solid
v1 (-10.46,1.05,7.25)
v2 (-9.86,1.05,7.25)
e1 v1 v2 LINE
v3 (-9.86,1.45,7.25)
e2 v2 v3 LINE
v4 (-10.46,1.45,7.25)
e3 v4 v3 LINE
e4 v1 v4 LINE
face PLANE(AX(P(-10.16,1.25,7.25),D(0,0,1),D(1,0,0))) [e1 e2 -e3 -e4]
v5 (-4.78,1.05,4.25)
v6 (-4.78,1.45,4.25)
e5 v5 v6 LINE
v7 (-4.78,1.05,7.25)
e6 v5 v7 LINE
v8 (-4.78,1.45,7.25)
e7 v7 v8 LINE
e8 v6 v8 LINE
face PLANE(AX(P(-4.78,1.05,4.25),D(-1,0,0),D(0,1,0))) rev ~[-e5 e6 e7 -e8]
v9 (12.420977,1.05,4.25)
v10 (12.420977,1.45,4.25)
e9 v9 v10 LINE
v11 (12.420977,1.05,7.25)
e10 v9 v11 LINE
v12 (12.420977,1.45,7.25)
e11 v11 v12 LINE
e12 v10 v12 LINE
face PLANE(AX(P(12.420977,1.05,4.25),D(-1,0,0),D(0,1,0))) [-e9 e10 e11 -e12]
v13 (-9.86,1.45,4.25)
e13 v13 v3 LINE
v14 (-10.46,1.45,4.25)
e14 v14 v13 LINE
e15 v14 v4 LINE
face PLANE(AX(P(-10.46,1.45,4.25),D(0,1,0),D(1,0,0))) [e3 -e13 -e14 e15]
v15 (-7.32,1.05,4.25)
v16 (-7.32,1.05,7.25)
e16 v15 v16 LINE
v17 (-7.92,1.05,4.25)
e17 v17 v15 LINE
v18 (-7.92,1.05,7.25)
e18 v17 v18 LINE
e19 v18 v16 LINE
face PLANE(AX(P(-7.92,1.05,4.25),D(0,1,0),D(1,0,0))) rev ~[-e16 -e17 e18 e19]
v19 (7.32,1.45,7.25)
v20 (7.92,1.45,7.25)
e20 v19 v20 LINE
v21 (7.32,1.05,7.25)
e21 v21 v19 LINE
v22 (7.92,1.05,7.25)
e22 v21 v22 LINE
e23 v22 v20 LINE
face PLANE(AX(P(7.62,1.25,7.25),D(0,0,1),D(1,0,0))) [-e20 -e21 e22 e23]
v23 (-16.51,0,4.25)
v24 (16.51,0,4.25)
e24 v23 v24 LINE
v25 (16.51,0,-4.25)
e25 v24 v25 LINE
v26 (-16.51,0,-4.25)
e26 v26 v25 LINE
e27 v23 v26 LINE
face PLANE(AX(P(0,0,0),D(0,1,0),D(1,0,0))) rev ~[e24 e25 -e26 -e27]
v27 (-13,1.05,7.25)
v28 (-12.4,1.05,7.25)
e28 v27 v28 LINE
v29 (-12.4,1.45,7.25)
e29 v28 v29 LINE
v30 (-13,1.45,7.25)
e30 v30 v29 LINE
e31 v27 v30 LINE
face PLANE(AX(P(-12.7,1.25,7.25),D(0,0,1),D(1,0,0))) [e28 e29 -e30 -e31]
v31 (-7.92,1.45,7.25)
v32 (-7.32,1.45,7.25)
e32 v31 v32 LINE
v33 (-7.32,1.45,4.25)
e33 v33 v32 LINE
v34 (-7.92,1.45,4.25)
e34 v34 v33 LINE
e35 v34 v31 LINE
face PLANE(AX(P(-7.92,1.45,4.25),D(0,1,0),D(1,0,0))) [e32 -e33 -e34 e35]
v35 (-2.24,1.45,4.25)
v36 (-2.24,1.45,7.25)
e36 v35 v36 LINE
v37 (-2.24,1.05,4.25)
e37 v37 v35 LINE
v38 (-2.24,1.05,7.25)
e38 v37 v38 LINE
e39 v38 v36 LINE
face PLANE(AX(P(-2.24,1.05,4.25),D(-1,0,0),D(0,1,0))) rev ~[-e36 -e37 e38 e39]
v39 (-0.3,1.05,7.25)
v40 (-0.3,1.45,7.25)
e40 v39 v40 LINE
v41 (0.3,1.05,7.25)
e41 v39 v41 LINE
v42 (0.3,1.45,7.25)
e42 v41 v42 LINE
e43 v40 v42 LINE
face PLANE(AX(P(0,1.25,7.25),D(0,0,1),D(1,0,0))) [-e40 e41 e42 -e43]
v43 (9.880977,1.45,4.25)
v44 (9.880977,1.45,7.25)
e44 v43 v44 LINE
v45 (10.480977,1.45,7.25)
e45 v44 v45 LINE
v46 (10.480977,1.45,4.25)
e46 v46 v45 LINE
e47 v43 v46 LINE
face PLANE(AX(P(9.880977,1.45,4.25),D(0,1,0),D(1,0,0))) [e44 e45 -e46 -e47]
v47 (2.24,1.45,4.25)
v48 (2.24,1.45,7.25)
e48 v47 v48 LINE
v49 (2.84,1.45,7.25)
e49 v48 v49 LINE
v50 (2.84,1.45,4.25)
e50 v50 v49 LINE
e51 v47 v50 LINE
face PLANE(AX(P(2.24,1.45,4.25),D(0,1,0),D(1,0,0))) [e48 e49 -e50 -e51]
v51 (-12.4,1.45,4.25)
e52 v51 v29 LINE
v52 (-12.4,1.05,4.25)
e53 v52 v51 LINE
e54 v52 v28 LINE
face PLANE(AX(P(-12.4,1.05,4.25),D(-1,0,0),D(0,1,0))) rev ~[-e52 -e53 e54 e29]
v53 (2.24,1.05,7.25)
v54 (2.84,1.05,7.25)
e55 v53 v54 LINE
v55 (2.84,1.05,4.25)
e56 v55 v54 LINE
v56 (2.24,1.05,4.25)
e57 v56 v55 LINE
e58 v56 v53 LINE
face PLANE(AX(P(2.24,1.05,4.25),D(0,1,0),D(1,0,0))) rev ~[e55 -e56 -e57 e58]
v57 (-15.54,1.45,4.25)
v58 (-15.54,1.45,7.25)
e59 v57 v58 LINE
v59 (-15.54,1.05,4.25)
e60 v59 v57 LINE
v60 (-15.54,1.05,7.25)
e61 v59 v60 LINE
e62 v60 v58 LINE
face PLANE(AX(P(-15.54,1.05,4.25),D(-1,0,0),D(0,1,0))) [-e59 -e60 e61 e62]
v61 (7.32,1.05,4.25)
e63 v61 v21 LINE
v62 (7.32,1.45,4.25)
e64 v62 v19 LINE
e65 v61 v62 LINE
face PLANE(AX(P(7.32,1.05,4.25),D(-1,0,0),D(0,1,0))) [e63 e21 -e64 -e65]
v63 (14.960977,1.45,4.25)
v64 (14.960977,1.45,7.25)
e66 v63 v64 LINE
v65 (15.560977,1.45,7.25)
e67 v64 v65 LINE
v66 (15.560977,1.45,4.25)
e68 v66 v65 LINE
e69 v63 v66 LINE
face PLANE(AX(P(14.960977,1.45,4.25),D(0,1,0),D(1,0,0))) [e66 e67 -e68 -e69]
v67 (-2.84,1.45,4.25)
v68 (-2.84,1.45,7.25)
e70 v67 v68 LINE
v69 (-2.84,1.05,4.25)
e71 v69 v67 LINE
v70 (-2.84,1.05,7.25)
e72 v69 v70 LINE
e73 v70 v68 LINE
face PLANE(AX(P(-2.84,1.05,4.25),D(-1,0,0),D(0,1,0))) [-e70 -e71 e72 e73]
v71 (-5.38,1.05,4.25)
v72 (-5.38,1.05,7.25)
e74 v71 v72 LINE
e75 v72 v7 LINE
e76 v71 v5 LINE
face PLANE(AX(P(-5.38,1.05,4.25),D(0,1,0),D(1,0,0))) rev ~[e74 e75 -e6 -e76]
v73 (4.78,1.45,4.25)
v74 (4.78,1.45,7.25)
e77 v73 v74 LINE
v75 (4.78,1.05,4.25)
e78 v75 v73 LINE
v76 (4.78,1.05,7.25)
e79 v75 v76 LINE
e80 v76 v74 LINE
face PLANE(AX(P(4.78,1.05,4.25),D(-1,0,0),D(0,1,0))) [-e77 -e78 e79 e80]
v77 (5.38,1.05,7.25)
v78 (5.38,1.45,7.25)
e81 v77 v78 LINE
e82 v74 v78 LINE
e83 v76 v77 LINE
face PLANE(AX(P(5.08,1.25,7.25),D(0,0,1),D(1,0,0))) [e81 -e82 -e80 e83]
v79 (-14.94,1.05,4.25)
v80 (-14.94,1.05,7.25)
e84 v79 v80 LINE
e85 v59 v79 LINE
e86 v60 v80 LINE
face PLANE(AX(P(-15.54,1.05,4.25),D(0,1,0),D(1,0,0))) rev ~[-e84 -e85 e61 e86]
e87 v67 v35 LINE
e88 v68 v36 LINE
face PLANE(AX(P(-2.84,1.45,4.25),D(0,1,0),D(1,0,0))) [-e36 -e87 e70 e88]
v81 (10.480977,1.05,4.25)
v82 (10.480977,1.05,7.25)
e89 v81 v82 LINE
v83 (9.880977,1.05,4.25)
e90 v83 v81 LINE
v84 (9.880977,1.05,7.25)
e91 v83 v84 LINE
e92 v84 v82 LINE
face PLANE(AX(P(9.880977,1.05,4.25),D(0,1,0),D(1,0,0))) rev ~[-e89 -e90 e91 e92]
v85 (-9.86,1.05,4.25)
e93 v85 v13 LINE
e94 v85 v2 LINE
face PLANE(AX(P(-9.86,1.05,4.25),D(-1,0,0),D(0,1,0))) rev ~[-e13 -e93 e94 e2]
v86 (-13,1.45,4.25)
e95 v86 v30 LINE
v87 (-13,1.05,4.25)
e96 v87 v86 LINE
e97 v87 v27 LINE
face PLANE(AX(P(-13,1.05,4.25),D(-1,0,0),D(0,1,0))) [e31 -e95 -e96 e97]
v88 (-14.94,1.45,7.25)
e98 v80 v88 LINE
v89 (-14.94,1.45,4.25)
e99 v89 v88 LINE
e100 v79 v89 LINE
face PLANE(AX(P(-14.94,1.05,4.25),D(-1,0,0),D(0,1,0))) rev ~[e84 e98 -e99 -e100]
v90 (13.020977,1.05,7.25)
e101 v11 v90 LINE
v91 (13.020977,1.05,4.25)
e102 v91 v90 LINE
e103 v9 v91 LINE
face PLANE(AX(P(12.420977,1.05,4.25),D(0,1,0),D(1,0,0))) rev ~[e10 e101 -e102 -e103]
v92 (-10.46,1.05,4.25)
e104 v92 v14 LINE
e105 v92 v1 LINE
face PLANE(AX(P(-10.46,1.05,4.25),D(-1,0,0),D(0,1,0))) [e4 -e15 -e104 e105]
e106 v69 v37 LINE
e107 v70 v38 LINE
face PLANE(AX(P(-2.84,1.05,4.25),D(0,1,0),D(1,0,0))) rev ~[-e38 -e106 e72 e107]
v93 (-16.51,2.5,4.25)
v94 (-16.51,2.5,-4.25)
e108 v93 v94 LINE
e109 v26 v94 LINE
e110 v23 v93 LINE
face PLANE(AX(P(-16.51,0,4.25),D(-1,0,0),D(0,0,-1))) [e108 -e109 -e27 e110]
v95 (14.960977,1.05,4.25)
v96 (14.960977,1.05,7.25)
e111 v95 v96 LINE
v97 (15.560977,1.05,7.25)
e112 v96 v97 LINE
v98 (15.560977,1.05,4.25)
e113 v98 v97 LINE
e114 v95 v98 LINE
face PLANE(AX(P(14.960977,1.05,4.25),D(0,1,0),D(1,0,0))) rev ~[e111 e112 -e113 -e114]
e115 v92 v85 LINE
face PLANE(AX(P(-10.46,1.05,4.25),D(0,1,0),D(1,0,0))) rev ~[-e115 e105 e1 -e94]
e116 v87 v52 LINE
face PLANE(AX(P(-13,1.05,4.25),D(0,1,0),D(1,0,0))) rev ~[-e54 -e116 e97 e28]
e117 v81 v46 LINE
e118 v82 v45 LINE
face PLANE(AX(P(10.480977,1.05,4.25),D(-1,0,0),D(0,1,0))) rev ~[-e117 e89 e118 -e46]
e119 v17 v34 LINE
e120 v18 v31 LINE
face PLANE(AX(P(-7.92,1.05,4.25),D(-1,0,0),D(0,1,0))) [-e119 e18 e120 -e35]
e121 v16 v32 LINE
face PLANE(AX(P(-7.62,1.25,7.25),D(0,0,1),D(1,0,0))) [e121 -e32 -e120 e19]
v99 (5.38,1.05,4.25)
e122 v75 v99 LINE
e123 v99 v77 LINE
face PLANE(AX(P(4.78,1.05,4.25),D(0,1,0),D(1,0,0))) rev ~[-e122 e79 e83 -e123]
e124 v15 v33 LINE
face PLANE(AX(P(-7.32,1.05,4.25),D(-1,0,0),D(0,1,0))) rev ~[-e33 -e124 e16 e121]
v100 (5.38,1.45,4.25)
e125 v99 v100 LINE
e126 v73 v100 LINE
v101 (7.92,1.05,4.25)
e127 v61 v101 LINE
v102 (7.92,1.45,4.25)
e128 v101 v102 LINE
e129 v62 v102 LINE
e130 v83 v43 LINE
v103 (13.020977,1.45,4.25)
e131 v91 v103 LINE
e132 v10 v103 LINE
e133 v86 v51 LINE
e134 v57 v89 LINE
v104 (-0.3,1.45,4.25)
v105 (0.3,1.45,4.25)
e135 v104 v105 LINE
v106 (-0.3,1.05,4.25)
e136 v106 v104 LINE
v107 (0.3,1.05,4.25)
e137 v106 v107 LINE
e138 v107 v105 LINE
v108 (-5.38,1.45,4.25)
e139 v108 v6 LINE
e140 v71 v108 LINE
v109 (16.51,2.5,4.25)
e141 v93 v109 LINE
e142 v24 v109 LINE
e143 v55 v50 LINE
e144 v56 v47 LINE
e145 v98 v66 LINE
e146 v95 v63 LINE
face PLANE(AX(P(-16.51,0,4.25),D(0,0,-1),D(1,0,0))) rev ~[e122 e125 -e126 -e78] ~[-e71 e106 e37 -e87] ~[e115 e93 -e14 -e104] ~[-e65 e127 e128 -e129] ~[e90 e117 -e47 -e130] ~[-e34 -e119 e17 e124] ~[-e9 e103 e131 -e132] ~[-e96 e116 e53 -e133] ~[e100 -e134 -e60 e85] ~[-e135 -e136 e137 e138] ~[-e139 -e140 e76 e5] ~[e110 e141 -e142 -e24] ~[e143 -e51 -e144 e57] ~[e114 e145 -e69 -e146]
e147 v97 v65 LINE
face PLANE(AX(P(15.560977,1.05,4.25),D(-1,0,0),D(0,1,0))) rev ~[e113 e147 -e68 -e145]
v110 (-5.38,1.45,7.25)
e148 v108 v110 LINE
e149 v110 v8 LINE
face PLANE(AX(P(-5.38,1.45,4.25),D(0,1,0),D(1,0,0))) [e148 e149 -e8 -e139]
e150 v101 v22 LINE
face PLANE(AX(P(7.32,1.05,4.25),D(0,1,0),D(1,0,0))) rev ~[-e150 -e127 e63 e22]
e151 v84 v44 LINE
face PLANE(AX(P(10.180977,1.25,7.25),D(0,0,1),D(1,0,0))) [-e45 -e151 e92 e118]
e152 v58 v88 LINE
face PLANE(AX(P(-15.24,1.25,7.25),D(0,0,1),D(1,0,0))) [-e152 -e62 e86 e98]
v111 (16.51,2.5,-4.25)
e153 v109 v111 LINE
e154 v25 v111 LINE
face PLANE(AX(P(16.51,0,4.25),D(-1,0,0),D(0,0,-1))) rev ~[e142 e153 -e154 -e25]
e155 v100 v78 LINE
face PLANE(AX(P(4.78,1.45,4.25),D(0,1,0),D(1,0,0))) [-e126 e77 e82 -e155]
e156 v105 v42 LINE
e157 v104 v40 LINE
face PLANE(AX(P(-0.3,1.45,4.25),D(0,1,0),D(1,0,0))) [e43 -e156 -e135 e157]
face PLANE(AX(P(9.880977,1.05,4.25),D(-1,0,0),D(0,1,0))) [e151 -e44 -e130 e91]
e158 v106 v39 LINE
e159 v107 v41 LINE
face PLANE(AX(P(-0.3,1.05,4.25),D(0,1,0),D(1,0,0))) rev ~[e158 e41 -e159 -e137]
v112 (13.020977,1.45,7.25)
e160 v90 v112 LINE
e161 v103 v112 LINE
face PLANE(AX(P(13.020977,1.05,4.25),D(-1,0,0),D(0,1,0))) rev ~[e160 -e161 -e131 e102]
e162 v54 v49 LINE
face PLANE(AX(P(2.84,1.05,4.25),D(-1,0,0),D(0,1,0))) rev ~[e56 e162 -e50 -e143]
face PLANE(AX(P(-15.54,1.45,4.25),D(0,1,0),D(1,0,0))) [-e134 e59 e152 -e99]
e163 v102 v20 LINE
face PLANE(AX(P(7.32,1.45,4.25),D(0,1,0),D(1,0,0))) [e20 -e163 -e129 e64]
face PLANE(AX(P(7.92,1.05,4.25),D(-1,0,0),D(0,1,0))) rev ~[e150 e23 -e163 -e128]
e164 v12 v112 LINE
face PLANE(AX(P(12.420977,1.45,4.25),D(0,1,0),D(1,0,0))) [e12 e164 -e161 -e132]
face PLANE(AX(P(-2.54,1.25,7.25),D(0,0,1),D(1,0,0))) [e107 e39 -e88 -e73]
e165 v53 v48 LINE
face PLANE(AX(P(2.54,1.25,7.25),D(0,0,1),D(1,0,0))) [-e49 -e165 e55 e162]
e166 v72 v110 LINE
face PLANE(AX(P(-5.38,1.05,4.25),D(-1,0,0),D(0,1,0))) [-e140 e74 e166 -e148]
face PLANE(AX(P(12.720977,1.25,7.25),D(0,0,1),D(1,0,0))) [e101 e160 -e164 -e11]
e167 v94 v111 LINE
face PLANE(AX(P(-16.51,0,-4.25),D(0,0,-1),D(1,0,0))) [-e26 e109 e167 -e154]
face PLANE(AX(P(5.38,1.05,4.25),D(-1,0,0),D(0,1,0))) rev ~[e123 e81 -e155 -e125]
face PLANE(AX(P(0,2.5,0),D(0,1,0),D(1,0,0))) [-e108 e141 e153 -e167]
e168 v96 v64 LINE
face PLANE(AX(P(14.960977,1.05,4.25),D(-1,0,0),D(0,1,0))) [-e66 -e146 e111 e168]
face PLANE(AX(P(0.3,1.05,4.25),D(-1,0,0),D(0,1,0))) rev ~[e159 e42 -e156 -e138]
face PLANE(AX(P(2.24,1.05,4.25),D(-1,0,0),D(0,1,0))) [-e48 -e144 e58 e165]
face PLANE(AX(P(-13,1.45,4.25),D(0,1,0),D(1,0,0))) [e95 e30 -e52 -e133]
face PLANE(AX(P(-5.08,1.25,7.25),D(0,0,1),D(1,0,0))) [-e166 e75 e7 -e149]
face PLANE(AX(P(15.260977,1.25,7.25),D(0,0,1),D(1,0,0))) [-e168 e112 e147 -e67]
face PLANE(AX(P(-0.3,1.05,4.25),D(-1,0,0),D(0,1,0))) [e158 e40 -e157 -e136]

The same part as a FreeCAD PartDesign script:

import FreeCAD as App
import Part
import Sketcher
from FreeCAD import Vector
Q = App.Units.Quantity


def add_polygon(sketch, points):
    """Adds a closed chain of lines whose ends are joined by coincident constraints."""
    first, n = sketch.GeometryCount, len(points)
    for a, b in zip(points, points[1:] + points[:1]):
        sketch.addGeometry(Part.LineSegment(App.Vector(*a, 0), App.Vector(*b, 0)), False)
    for i in range(n):
        sketch.addConstraint(Sketcher.Constraint("Coincident", first + i, 2, first + (i + 1) % n, 1))

doc = App.newDocument("Part")
body = doc.addObject("PartDesign::Body", "Body")

# Sketch on XZ plane
sketch1 = body.newObject("Sketcher::SketchObject", "Sketch")
sketch1.AttachmentSupport = (doc.getObject("XZ_Plane"), [""])
sketch1.MapMode = "FlatFace"
add_polygon(sketch1, [(-17, -4), (-17, 4), (17, 4), (17, -4)])  # lines 0-3
sketch1.addConstraint([
    Sketcher.Constraint("Vertical", 0),
    Sketcher.Constraint("Horizontal", 1),
    Sketcher.Constraint("Vertical", 2),
    Sketcher.Constraint("Horizontal", 3),
    Sketcher.Constraint("Symmetric", 0, 2, 2, 2, -1, 1),
    Sketcher.Constraint("DistanceY", 0, 1, 0, 2, Q("8.5 mm")),
    Sketcher.Constraint("DistanceX", 1, 1, 1, 2, Q("33.02 mm")),
])
pad1 = body.newObject("PartDesign::Pad", "Pad")
pad1.Profile = sketch1
pad1.Length = 2.5
pad1.Reversed = True

# Sketch on XY plane
sketch2 = body.newObject("Sketcher::SketchObject", "Sketch001")
sketch2.AttachmentSupport = (doc.getObject("XY_Plane"), [""])
sketch2.MapMode = "FlatFace"
sketch2.AttachmentOffset = App.Placement(Vector(0, 0, 4.25), App.Rotation())
add_polygon(sketch2, [(-7.92, 1.45), (-7.92, 1.05), (-7.32, 1.05), (-7.32, 1.45)])  # lines 0-3
add_polygon(sketch2, [(-10.46, 1.45), (-10.46, 1.05), (-9.86, 1.05), (-9.86, 1.45)])  # lines 4-7
add_polygon(sketch2, [(-5.38, 1.45), (-5.38, 1.05), (-4.78, 1.05), (-4.78, 1.45)])  # lines 8-11
add_polygon(sketch2, [(-2.84, 1.45), (-2.84, 1.05), (-2.24, 1.05), (-2.24, 1.45)])  # lines 12-15
add_polygon(sketch2, [(-0.3, 1.45), (-0.3, 1.05), (0.3, 1.05), (0.3, 1.45)])  # lines 16-19
add_polygon(sketch2, [(2.24, 1.45), (2.24, 1.05), (2.84, 1.05), (2.84, 1.45)])  # lines 20-23
add_polygon(sketch2, [(4.78, 1.45), (4.78, 1.05), (5.38, 1.05), (5.38, 1.45)])  # lines 24-27
add_polygon(sketch2, [(7.32, 1.45), (7.32, 1.05), (7.92, 1.05), (7.92, 1.45)])  # lines 28-31
add_polygon(sketch2, [(9.88, 1.45), (9.88, 1.05), (10.48, 1.05), (10.48, 1.45)])  # lines 32-35
add_polygon(sketch2, [(12.42, 1.45), (12.42, 1.05), (13.02, 1.05), (13.02, 1.45)])  # lines 36-39
add_polygon(sketch2, [(14.96, 1.45), (14.96, 1.05), (15.56, 1.05), (15.56, 1.45)])  # lines 40-43
add_polygon(sketch2, [(-13, 1.45), (-13, 1.05), (-12.4, 1.05), (-12.4, 1.45)])  # lines 44-47
add_polygon(sketch2, [(-15.54, 1.45), (-15.54, 1.05), (-14.94, 1.05), (-14.94, 1.45)])  # lines 48-51
sketch2.addConstraint([
    Sketcher.Constraint("Vertical", 0),
    Sketcher.Constraint("Horizontal", 1),
    Sketcher.Constraint("Vertical", 2),
    Sketcher.Constraint("Horizontal", 3),
    Sketcher.Constraint("Vertical", 4),
    Sketcher.Constraint("Horizontal", 5),
    Sketcher.Constraint("Vertical", 6),
    Sketcher.Constraint("Horizontal", 7),
    Sketcher.Constraint("Vertical", 8),
    Sketcher.Constraint("Horizontal", 9),
    Sketcher.Constraint("Vertical", 10),
    Sketcher.Constraint("Horizontal", 11),
    Sketcher.Constraint("Vertical", 12),
    Sketcher.Constraint("Horizontal", 13),
    Sketcher.Constraint("Vertical", 14),
    Sketcher.Constraint("Horizontal", 15),
    Sketcher.Constraint("Vertical", 16),
    Sketcher.Constraint("Horizontal", 17),
    Sketcher.Constraint("Vertical", 18),
    Sketcher.Constraint("Horizontal", 19),
    Sketcher.Constraint("Vertical", 20),
    Sketcher.Constraint("Horizontal", 21),
    Sketcher.Constraint("Vertical", 22),
    Sketcher.Constraint("Horizontal", 23),
    Sketcher.Constraint("Vertical", 24),
    Sketcher.Constraint("Horizontal", 25),
    Sketcher.Constraint("Vertical", 26),
    Sketcher.Constraint("Horizontal", 27),
    Sketcher.Constraint("Vertical", 28),
    Sketcher.Constraint("Horizontal", 29),
    Sketcher.Constraint("Vertical", 30),
    Sketcher.Constraint("Horizontal", 31),
    Sketcher.Constraint("Vertical", 32),
    Sketcher.Constraint("Horizontal", 33),
    Sketcher.Constraint("Vertical", 34),
    Sketcher.Constraint("Horizontal", 35),
    Sketcher.Constraint("Vertical", 36),
    Sketcher.Constraint("Horizontal", 37),
    Sketcher.Constraint("Vertical", 38),
    Sketcher.Constraint("Horizontal", 39),
    Sketcher.Constraint("Vertical", 40),
    Sketcher.Constraint("Horizontal", 41),
    Sketcher.Constraint("Vertical", 42),
    Sketcher.Constraint("Horizontal", 43),
    Sketcher.Constraint("Vertical", 44),
    Sketcher.Constraint("Horizontal", 45),
    Sketcher.Constraint("Vertical", 46),
    Sketcher.Constraint("Horizontal", 47),
    Sketcher.Constraint("Vertical", 48),
    Sketcher.Constraint("Horizontal", 49),
    Sketcher.Constraint("Vertical", 50),
    Sketcher.Constraint("Horizontal", 51),
    Sketcher.Constraint("Symmetric", 13, 2, 20, 2, -2),
    Sketcher.Constraint("Symmetric", 15, 2, 22, 2, -2),
    Sketcher.Constraint("Symmetric", 9, 2, 24, 2, -2),
    Sketcher.Constraint("Symmetric", 11, 2, 26, 2, -2),
    Sketcher.Constraint("Symmetric", 1, 2, 28, 2, -2),
    Sketcher.Constraint("Symmetric", 3, 2, 30, 2, -2),
    Sketcher.Constraint("Horizontal", 1, 2, 4, 2),
    Sketcher.Constraint("Horizontal", 3, 2, 6, 2),
    Sketcher.Constraint("Horizontal", 5, 2, 8, 2),
    Sketcher.Constraint("Horizontal", 7, 2, 10, 2),
    Sketcher.Constraint("Horizontal", 9, 2, 12, 2),
    Sketcher.Constraint("Horizontal", 11, 2, 14, 2),
    Sketcher.Constraint("Horizontal", 13, 2, 16, 2),
    Sketcher.Constraint("Horizontal", 15, 2, 18, 2),
    Sketcher.Constraint("Horizontal", 29, 2, 32, 2),
    Sketcher.Constraint("Horizontal", 31, 2, 34, 2),
    Sketcher.Constraint("Horizontal", 33, 2, 36, 2),
    Sketcher.Constraint("Horizontal", 35, 2, 38, 2),
    Sketcher.Constraint("Horizontal", 37, 2, 40, 2),
    Sketcher.Constraint("Horizontal", 39, 2, 42, 2),
    Sketcher.Constraint("Horizontal", 41, 2, 44, 2),
    Sketcher.Constraint("Horizontal", 43, 2, 46, 2),
    Sketcher.Constraint("Horizontal", 45, 2, 48, 2),
    Sketcher.Constraint("Horizontal", 47, 2, 50, 2),
    Sketcher.Constraint("Equal", 3, 5),
    Sketcher.Constraint("Equal", 7, 9),
    Sketcher.Constraint("Equal", 11, 13),
    Sketcher.Constraint("Equal", 15, 17),
    Sketcher.Constraint("Equal", 31, 33),
    Sketcher.Constraint("Equal", 35, 37),
    Sketcher.Constraint("Equal", 39, 41),
    Sketcher.Constraint("Equal", 43, 45),
    Sketcher.Constraint("Equal", 47, 49),
    Sketcher.Constraint("DistanceX", 1, 1, 1, 2, Q("0.6 mm")),
    Sketcher.Constraint("DistanceY", 0, 2, 0, 1, Q("0.4 mm")),
    Sketcher.Constraint("DistanceX", 44, 2, -1, 1, Q("13 mm")),
    Sketcher.Constraint("DistanceX", 16, 2, -1, 1, Q("0.3 mm")),
    Sketcher.Constraint("DistanceX", 0, 2, -1, 1, Q("7.92 mm")),
    Sketcher.Constraint("DistanceY", -1, 1, 0, 2, Q("1.05 mm")),
    Sketcher.Constraint("DistanceX", 4, 2, -1, 1, Q("10.46 mm")),
    Sketcher.Constraint("DistanceX", 8, 2, -1, 1, Q("5.38 mm")),
    Sketcher.Constraint("DistanceX", 12, 2, -1, 1, Q("2.84 mm")),
    Sketcher.Constraint("DistanceX", 48, 2, -1, 1, Q("15.54 mm")),
    Sketcher.Constraint("DistanceX", 33, 2, 36, 2, Q("1.94 mm")),
    Sketcher.Constraint("DistanceX", 37, 2, 40, 2, Q("1.94 mm")),
    Sketcher.Constraint("DistanceX", -1, 1, 32, 2, Q("9.880977 mm")),
])
pad2 = body.newObject("PartDesign::Pad", "Pad001")
pad2.Profile = sketch2
pad2.Length = 3

doc.recompute()
